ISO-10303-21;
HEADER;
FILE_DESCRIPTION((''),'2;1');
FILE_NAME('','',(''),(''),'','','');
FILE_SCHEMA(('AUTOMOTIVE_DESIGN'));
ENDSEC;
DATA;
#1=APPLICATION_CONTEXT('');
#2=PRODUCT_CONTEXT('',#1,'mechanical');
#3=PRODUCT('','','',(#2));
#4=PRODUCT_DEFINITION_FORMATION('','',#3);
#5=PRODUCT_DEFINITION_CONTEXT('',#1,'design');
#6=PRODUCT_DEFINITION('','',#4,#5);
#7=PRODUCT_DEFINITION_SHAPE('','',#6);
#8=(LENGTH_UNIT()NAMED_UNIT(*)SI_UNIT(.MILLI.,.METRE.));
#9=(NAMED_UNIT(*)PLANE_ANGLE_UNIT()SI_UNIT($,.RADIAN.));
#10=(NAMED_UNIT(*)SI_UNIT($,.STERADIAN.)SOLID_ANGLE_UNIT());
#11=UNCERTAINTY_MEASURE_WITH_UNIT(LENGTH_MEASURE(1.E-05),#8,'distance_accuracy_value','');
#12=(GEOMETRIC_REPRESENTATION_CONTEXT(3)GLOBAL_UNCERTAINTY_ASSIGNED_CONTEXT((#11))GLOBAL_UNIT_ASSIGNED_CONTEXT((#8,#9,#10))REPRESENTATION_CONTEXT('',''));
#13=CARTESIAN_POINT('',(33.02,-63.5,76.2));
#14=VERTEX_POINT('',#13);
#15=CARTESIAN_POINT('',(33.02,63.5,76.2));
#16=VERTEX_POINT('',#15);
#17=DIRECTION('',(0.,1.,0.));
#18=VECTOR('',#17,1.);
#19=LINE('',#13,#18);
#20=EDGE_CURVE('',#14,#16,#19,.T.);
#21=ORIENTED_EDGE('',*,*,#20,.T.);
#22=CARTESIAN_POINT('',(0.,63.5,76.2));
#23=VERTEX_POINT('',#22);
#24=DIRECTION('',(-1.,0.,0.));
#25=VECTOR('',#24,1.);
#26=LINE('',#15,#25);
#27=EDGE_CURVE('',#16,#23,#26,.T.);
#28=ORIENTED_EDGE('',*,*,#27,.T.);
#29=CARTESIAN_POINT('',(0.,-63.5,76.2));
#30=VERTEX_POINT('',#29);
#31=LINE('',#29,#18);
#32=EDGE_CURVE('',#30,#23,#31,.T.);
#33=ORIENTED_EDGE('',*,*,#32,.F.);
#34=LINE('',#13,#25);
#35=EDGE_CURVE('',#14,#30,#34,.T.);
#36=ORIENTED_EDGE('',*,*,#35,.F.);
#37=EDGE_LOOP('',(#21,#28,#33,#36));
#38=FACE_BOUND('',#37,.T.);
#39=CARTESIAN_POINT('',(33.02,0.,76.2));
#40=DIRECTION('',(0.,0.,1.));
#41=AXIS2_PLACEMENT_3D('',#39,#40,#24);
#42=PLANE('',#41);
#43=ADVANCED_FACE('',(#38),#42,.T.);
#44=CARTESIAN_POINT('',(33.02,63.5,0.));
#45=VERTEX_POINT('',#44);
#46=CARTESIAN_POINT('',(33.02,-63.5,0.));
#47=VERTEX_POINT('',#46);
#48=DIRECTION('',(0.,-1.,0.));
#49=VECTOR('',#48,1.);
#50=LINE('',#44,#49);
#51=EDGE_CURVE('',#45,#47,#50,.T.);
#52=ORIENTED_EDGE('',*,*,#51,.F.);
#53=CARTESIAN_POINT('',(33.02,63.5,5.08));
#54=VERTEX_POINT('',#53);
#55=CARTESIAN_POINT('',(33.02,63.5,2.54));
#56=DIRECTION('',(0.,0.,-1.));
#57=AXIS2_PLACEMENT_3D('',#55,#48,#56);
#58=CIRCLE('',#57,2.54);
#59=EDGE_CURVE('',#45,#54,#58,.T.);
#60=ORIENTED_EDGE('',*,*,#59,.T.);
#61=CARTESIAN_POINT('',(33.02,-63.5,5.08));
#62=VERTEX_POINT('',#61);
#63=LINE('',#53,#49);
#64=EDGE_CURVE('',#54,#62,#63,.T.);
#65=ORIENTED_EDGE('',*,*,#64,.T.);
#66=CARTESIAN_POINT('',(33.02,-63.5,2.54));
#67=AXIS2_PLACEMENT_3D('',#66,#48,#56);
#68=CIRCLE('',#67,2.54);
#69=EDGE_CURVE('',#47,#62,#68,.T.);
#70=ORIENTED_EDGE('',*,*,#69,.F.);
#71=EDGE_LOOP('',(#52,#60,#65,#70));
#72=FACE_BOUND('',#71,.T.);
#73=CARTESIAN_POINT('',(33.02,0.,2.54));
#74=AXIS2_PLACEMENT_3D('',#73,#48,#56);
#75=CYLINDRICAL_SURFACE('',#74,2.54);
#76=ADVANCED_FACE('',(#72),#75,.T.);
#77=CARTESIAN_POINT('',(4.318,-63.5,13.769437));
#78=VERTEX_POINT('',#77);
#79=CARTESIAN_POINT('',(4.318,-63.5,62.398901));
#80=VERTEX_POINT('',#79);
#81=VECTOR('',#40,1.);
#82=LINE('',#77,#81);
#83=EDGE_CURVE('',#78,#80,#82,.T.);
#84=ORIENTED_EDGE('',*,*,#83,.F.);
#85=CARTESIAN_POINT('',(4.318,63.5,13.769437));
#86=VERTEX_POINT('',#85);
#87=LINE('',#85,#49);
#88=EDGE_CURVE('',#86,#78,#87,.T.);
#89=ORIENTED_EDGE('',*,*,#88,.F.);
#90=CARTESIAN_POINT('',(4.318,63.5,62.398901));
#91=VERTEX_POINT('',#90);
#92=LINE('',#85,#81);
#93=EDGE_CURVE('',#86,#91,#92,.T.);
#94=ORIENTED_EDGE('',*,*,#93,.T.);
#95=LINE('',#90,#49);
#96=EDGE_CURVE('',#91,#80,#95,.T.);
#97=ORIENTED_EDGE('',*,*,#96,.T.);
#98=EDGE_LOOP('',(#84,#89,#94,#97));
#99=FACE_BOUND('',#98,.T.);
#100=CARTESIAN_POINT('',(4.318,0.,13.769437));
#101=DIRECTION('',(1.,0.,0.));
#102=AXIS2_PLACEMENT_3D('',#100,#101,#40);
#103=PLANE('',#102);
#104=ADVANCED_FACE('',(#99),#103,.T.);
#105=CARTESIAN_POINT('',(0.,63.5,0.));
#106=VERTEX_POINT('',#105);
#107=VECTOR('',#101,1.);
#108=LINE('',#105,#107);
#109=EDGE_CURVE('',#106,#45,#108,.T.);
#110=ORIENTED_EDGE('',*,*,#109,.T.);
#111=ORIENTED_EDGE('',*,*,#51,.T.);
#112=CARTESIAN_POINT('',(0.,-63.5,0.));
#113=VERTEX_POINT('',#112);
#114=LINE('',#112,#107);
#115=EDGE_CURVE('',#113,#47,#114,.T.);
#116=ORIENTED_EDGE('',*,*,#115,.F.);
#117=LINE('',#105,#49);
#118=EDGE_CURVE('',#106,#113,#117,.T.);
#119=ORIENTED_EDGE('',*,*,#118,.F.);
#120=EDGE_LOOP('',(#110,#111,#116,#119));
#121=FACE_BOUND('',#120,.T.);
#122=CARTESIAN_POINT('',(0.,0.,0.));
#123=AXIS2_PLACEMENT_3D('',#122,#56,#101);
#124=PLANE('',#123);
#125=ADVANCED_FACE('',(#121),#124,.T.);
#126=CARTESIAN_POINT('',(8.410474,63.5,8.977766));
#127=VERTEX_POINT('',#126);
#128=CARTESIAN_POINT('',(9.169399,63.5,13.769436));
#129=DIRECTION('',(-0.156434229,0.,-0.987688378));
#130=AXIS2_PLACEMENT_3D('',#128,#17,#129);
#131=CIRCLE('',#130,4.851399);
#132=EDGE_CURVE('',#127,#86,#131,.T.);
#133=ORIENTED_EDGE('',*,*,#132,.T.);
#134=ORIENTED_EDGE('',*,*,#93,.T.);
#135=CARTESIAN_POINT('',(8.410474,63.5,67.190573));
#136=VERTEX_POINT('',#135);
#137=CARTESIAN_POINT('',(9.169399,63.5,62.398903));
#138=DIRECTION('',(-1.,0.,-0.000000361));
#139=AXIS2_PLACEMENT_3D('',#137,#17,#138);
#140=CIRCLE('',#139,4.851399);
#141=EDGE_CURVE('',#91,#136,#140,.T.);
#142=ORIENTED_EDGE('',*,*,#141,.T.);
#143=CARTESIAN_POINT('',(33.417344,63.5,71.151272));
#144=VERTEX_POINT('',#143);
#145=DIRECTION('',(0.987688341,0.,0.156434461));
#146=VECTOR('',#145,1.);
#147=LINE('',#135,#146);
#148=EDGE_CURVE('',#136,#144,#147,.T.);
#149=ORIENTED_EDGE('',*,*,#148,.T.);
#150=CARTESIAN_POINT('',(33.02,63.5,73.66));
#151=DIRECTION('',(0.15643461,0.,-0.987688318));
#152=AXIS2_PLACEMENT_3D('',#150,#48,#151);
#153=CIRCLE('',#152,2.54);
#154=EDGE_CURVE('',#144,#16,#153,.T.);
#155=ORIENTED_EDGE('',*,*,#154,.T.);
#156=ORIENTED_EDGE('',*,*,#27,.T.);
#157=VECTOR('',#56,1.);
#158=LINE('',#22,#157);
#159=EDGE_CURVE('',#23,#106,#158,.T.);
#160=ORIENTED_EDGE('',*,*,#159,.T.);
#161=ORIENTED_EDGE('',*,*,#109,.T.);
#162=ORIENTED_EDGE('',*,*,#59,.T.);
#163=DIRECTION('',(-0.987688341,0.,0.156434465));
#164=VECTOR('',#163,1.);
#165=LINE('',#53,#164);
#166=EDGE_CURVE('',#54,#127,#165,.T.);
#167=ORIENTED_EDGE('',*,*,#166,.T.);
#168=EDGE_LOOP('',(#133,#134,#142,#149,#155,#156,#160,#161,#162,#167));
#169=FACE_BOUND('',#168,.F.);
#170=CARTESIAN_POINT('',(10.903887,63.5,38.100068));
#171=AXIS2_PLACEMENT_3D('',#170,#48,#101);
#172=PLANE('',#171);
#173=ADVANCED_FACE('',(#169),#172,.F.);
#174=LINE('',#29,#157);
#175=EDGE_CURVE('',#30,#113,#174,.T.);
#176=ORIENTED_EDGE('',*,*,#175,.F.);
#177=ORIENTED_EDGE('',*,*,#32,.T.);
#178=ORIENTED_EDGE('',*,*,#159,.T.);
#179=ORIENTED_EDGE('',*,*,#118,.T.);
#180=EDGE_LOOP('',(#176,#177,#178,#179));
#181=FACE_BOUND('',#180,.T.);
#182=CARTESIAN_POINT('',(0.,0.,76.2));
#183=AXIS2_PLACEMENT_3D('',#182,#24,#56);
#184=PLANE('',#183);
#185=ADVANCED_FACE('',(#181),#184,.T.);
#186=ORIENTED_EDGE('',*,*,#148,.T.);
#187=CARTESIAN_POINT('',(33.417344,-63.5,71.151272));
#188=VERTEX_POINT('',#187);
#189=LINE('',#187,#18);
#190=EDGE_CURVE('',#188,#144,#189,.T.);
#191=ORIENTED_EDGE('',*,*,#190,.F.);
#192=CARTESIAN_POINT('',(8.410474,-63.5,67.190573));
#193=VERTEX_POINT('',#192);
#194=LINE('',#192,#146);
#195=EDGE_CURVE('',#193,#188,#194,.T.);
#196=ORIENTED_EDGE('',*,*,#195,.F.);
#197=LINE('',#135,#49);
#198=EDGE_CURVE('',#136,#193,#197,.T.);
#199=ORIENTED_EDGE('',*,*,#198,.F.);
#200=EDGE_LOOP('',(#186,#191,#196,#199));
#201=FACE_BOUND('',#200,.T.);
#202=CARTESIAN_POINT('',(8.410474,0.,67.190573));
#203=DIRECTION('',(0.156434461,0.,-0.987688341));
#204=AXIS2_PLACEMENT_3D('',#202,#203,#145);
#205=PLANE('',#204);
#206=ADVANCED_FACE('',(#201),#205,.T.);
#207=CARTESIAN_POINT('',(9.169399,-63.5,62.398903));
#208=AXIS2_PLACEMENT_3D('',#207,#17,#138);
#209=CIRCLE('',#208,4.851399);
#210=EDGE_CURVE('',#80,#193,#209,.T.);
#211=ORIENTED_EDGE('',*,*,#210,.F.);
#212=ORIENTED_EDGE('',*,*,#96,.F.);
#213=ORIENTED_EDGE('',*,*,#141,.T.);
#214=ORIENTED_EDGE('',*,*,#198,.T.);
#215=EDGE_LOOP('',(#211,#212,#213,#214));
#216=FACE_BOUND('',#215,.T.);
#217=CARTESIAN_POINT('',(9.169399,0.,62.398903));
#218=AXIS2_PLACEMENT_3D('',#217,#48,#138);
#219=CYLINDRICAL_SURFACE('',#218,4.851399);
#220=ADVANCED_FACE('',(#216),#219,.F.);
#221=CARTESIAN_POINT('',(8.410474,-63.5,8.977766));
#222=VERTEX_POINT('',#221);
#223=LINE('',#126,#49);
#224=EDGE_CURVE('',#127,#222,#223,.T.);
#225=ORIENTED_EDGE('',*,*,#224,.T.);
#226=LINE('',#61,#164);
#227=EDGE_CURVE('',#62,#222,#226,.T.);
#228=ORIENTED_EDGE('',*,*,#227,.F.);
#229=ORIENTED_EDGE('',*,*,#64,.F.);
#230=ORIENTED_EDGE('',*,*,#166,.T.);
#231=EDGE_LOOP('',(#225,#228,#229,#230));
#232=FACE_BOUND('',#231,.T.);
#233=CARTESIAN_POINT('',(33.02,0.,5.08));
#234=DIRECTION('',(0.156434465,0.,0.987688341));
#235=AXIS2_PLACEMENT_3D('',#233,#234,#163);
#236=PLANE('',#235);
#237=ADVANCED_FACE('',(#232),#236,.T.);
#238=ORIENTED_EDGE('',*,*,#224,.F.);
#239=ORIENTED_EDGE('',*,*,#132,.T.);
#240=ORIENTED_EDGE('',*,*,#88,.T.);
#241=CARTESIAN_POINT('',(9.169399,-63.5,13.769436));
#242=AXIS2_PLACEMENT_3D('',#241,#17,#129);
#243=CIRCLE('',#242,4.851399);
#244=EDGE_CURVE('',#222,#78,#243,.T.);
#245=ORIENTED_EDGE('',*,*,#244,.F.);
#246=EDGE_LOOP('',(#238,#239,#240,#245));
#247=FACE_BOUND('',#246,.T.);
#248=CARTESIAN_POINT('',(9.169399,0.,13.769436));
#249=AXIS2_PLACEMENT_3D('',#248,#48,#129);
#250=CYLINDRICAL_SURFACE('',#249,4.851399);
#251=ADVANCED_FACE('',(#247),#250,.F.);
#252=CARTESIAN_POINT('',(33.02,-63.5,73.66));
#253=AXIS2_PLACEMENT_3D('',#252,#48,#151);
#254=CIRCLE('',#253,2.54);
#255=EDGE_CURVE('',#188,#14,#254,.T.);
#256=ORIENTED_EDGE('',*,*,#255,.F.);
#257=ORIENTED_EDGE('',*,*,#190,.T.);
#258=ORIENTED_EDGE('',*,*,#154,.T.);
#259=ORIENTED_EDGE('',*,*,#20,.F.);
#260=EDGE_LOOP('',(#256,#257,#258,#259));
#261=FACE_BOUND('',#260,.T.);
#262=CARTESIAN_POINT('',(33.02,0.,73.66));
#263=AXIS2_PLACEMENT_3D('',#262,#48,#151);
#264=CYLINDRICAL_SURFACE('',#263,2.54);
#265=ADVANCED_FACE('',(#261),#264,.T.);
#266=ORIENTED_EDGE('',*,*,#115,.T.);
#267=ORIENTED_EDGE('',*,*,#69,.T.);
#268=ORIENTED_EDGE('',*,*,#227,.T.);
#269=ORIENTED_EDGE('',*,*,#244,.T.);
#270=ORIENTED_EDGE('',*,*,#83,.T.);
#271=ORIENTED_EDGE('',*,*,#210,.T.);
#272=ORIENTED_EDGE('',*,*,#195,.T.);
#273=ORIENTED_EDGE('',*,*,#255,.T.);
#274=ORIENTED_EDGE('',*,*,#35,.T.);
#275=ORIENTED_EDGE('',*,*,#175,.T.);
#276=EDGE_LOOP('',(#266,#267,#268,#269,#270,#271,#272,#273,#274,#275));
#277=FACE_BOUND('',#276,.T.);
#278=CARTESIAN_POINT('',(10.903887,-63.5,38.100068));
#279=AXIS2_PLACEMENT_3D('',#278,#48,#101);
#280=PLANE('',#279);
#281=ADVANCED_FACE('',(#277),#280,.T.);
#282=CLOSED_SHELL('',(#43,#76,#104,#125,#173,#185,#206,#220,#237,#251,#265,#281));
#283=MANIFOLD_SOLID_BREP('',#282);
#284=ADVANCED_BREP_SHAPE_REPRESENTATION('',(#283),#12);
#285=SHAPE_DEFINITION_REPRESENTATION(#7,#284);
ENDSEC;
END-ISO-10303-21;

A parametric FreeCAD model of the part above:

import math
import FreeCAD as App
import Part
import Sketcher
from FreeCAD import Vector
Q = App.Units.Quantity

doc = App.newDocument("Part")
body = doc.addObject("PartDesign::Body", "Body")

sketch1 = body.newObject("Sketcher::SketchObject", "Sketch")
sketch1.AttachmentSupport = (doc.getObject("XZ_Plane"), [""])
sketch1.MapMode = "FlatFace"
sketch1.addGeometry([
    Part.LineSegment(Vector(0, 76.2, 0), Vector(0, 0, 0)),
    Part.LineSegment(Vector(0, 0, 0), Vector(33.02, 0, 0)),
    Part.ArcOfCircle(Part.Circle(Vector(33.02, 2.54, 0), Vector(0, 0, 1), 2.54), math.radians(-90), math.radians(90)),
    Part.LineSegment(Vector(33.02, 5.08, 0), Vector(8.410474, 8.977766, 0)),
    Part.ArcOfCircle(Part.Circle(Vector(9.169399, 13.769436, 0), Vector(0, 0, 1), 4.851399), math.radians(179.999991), math.radians(261.000014)),
    Part.LineSegment(Vector(4.318, 13.769437, 0), Vector(4.318, 62.398901, 0)),
    Part.ArcOfCircle(Part.Circle(Vector(9.169399, 62.398903, 0), Vector(0, 0, 1), 4.851399), math.radians(98.999986), math.radians(180.000021)),
    Part.LineSegment(Vector(8.410474, 67.190573, 0), Vector(33.417344, 71.151272, 0)),
    Part.ArcOfCircle(Part.Circle(Vector(33.02, 73.66, 0), Vector(0, 0, 1), 2.54), math.radians(-80.999992), math.radians(90.000003)),
    Part.LineSegment(Vector(33.02, 76.2, 0), Vector(0, 76.2, 0)),
], False)
sketch1.addConstraint([
    Sketcher.Constraint("Coincident", 0, 2, 1, 1),
    Sketcher.Constraint("Tangent", 1, 2, 2, 1),
    Sketcher.Constraint("Coincident", 2, 2, 3, 1),
    Sketcher.Constraint("Tangent", 3, 2, 4, 2),
    Sketcher.Constraint("Tangent", 4, 1, 5, 1),
    Sketcher.Constraint("Tangent", 5, 2, 6, 2),
    Sketcher.Constraint("Tangent", 6, 1, 7, 1),
    Sketcher.Constraint("Tangent", 7, 2, 8, 1),
    Sketcher.Constraint("Tangent", 8, 2, 9, 1),
    Sketcher.Constraint("Coincident", 9, 2, 0, 1),
    Sketcher.Constraint("Vertical", 0),
    Sketcher.Constraint("Horizontal", 1),
    Sketcher.Constraint("Vertical", 5),
    Sketcher.Constraint("Horizontal", 9),
    Sketcher.Constraint("Coincident", 0, 2, -1, 1),
    Sketcher.Constraint("Equal", 4, 6),
    Sketcher.Constraint("Equal", 2, 8),
    Sketcher.Constraint("Vertical", 2, 3, 8, 3),
    Sketcher.Constraint("Vertical", 1, 2, 2, 2),
    Sketcher.Constraint("Vertical", 3, 2, 6, 1),
    Sketcher.Constraint("Radius", 2, Q("0.1 in")),
    Sketcher.Constraint("DistanceY", 0, 2, 0, 1, Q("3 in")),
    Sketcher.Constraint("DistanceX", 1, 1, 1, 2, Q("1.3 in")),
    Sketcher.Constraint("Angle", 3, Q("171 deg")),
    Sketcher.Constraint("Radius", 4, Q("0.191 in")),
    Sketcher.Constraint("DistanceX", -1, 1, 4, 1, Q("0.17 in")),
])
pad1 = body.newObject("PartDesign::Pad", "Pad")
pad1.Profile = sketch1
pad1.Length = Q("5 in")
pad1.Midplane = True

doc.recompute()
